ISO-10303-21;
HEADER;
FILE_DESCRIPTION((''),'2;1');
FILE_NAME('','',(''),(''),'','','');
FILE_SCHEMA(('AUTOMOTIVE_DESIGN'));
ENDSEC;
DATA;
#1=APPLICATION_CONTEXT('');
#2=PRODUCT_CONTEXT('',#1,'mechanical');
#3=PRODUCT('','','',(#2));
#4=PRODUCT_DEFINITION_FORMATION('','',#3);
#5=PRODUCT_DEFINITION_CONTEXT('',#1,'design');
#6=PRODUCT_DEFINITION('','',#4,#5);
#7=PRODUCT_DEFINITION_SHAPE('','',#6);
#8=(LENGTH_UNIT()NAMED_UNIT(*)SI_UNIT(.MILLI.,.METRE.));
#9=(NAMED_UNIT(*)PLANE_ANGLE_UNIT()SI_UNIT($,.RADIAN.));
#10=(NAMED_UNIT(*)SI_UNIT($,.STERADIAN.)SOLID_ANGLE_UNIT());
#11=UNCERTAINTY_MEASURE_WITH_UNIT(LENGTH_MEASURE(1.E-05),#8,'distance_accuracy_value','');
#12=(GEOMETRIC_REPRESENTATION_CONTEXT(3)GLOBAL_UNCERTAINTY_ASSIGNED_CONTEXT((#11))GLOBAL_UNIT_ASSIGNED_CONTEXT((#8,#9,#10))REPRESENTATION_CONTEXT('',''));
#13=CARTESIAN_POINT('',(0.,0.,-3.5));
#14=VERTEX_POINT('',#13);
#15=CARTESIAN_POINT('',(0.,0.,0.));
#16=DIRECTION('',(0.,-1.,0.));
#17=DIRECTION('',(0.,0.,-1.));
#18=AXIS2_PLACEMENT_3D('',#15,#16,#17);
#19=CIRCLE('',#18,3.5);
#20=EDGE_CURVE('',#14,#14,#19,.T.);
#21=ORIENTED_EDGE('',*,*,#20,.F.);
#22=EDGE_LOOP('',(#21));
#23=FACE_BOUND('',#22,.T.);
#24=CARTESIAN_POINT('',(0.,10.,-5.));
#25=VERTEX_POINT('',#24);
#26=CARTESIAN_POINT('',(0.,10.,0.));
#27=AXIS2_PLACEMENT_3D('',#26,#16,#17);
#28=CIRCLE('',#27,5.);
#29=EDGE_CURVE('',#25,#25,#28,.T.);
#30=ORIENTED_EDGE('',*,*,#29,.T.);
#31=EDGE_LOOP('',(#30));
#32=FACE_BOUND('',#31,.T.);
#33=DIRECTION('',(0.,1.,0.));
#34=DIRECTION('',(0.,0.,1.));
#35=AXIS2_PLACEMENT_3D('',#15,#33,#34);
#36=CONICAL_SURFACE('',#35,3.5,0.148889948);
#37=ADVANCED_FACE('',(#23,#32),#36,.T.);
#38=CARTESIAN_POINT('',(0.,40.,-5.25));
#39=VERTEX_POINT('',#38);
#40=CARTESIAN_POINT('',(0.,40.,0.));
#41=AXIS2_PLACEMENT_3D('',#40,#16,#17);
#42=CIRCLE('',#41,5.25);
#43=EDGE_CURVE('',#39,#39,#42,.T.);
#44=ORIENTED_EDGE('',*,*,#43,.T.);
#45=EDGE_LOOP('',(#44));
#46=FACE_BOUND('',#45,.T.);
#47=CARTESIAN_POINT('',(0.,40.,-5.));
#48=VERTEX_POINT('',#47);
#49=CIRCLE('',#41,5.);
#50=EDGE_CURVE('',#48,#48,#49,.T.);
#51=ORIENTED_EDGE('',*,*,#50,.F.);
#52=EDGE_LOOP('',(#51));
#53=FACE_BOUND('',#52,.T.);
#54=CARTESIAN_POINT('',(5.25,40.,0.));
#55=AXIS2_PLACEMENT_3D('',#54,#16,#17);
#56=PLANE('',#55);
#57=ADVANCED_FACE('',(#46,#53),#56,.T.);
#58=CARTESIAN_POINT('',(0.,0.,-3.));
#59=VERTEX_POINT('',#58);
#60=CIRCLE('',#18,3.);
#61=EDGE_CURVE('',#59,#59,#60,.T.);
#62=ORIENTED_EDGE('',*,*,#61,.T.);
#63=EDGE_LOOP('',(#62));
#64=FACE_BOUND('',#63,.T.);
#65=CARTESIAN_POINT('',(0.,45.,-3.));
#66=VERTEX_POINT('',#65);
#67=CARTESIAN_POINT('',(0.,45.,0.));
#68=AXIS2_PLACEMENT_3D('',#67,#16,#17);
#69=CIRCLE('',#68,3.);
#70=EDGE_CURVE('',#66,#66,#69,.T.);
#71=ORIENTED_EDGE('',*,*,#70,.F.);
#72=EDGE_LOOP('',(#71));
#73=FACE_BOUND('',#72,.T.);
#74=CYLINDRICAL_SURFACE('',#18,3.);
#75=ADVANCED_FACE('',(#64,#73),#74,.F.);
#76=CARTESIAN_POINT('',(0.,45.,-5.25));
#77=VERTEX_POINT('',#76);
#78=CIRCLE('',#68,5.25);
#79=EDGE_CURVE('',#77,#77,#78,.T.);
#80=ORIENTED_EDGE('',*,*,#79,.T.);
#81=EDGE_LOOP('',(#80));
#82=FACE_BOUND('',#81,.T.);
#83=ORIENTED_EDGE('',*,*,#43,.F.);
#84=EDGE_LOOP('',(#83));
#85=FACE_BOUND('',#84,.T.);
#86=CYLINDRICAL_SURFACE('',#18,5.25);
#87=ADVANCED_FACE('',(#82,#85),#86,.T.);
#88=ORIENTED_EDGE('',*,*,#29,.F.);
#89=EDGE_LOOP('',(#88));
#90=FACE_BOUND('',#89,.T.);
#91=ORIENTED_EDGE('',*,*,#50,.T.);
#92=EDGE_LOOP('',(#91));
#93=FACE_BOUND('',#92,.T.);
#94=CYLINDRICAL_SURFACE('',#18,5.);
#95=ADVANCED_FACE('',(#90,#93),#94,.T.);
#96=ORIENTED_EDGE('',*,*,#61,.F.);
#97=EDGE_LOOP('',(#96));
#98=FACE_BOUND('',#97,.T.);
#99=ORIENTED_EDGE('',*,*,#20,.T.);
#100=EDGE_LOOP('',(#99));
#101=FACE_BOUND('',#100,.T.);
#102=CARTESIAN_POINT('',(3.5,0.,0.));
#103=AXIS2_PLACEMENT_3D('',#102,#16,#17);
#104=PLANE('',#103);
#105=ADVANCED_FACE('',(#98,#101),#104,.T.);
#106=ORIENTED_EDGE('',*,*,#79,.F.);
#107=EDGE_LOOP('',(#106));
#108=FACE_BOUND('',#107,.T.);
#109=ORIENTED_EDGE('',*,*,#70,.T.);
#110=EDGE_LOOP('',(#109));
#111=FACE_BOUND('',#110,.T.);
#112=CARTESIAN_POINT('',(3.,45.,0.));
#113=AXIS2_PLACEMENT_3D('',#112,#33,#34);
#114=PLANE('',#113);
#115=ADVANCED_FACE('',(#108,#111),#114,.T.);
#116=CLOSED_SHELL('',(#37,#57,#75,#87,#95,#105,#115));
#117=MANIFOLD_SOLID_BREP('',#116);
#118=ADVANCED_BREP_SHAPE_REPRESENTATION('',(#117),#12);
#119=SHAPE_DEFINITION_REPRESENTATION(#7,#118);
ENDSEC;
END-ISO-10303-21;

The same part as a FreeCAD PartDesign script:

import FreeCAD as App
import Part
import Sketcher

V = App.Vector
Q = App.Units.Quantity

doc = App.newDocument("Part")
body = doc.addObject("PartDesign::Body", "Body")

sketch1 = body.newObject("Sketcher::SketchObject", "Sketch")
sketch1.AttachmentSupport = (doc.getObject("XY_Plane"), [""])
sketch1.MapMode = "FlatFace"
sketch1.addGeometry([
    Part.LineSegment(V(3, 45, 0), V(3, 0, 0)),
    Part.LineSegment(V(3, 0, 0), V(3.5, 0, 0)),
    Part.LineSegment(V(3.5, 0, 0), V(5, 10, 0)),
    Part.LineSegment(V(5, 10, 0), V(5, 40, 0)),
    Part.LineSegment(V(5, 40, 0), V(5.25, 40, 0)),
    Part.LineSegment(V(5.25, 40, 0), V(5.25, 45, 0)),
    Part.LineSegment(V(5.25, 45, 0), V(3, 45, 0)),
], False)
sketch1.addConstraint([
    Sketcher.Constraint("Coincident", 0, 2, 1, 1),
    Sketcher.Constraint("Coincident", 1, 2, 2, 1),
    Sketcher.Constraint("Coincident", 2, 2, 3, 1),
    Sketcher.Constraint("Coincident", 3, 2, 4, 1),
    Sketcher.Constraint("Coincident", 4, 2, 5, 1),
    Sketcher.Constraint("Coincident", 5, 2, 6, 1),
    Sketcher.Constraint("Coincident", 6, 2, 0, 1),
    Sketcher.Constraint("Vertical", 0),
    Sketcher.Constraint("Horizontal", 1),
    Sketcher.Constraint("Vertical", 3),
    Sketcher.Constraint("Horizontal", 4),
    Sketcher.Constraint("Vertical", 5),
    Sketcher.Constraint("Horizontal", 6),
    Sketcher.Constraint("PointOnObject", 0, 2, -1),
    Sketcher.Constraint("DistanceY", 0, 2, 0, 1, Q("45 mm")),
    Sketcher.Constraint("DistanceY", 3, 1, 3, 2, Q("30 mm")),
    Sketcher.Constraint("DistanceY", 5, 1, 5, 2, Q("5 mm")),
    Sketcher.Constraint("DistanceX", 1, 1, 1, 2, Q("0.5 mm")),
    Sketcher.Constraint("DistanceX", -1, 1, 0, 2, Q("3 mm")),
    Sketcher.Constraint("DistanceX", -1, 1, 2, 2, Q("5 mm")),
    Sketcher.Constraint("DistanceX", 4, 1, 4, 2, Q("0.25 mm")),
])
revolution = body.newObject("PartDesign::Revolution", "Revolution")
revolution.Profile = sketch1
revolution.ReferenceAxis = (sketch1, ["V_Axis"])
revolution.Angle = 360

doc.recompute()
